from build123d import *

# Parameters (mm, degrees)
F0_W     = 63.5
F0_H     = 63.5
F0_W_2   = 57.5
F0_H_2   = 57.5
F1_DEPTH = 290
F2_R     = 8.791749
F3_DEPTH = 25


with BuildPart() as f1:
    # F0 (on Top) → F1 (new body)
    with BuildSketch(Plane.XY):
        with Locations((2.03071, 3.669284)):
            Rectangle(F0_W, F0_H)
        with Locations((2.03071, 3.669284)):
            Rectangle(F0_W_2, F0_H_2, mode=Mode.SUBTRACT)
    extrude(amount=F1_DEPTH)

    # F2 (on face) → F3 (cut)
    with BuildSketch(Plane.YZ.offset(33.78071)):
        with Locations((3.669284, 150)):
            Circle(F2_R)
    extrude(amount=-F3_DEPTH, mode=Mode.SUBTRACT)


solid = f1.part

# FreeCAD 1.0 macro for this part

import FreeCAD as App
import Part
import Sketcher
from FreeCAD import Vector
Q = App.Units.Quantity


def add_polygon(sketch, points):
    """Adds a closed chain of lines whose ends are joined by coincident constraints."""
    first, n = sketch.GeometryCount, len(points)
    for a, b in zip(points, points[1:] + points[:1]):
        sketch.addGeometry(Part.LineSegment(App.Vector(*a, 0), App.Vector(*b, 0)), False)
    for i in range(n):
        sketch.addConstraint(Sketcher.Constraint("Coincident", first + i, 2, first + (i + 1) % n, 1))

doc = App.newDocument("Part")
body = doc.addObject("PartDesign::Body", "Body")

sketch1 = body.newObject("Sketcher::SketchObject", "Sketch")
sketch1.AttachmentSupport = (doc.getObject("XY_Plane"), [""])
sketch1.MapMode = "FlatFace"
add_polygon(sketch1, [(-30, 35), (-30, -28), (34, -28), (34, 35)])
add_polygon(sketch1, [(31, -25), (-27, -25), (-27, 32), (31, 32)])
sketch1.addConstraint([
    Sketcher.Constraint("Vertical", 0),
    Sketcher.Constraint("Horizontal", 1),
    Sketcher.Constraint("Vertical", 2),
    Sketcher.Constraint("Horizontal", 3),
    Sketcher.Constraint("Horizontal", 4),
    Sketcher.Constraint("Vertical", 5),
    Sketcher.Constraint("Horizontal", 6),
    Sketcher.Constraint("Vertical", 7),
    Sketcher.Constraint("Equal", 3, 0),
    Sketcher.Constraint("Equal", 6, 5),
    Sketcher.Constraint("DistanceX", 1, 1, 1, 2, Q("63.5 mm")),
    Sketcher.Constraint("DistanceX", 4, 2, 4, 1, Q("57.5 mm")),
    Sketcher.Constraint("DistanceX", 0, 2, 4, 2, Q("3 mm")),
    Sketcher.Constraint("DistanceY", 0, 2, 4, 2, Q("3 mm")),
    Sketcher.Constraint("DistanceX", 0, 2, -1, 1, Q("29.71929 mm")),
    Sketcher.Constraint("DistanceY", 0, 2, -1, 1, Q("28.080716 mm")),
])
pad1 = body.newObject("PartDesign::Pad", "Pad")
pad1.Profile = sketch1
pad1.Length = 290

sketch2 = body.newObject("Sketcher::SketchObject", "Sketch001")
sketch2.AttachmentSupport = (doc.getObject("YZ_Plane"), [""])
sketch2.MapMode = "FlatFace"
sketch2.AttachmentOffset = App.Placement(Vector(0, 0, 33.78071), App.Rotation())
sketch2.addGeometry(Part.Circle(Vector(4, 150, 0), Vector(0, 0, 1), 9), False)
sketch2.addConstraint([
    Sketcher.Constraint("DistanceY", -1, 1, 0, 3, Q("150 mm")),
    Sketcher.Constraint("Diameter", 0, Q("17.583498 mm")),
    Sketcher.Constraint("DistanceX", -1, 1, 0, 3, Q("3.669284 mm")),
])
pocket1 = body.newObject("PartDesign::Pocket", "Pocket")
pocket1.Profile = sketch2
pocket1.Length = 25

doc.recompute()
